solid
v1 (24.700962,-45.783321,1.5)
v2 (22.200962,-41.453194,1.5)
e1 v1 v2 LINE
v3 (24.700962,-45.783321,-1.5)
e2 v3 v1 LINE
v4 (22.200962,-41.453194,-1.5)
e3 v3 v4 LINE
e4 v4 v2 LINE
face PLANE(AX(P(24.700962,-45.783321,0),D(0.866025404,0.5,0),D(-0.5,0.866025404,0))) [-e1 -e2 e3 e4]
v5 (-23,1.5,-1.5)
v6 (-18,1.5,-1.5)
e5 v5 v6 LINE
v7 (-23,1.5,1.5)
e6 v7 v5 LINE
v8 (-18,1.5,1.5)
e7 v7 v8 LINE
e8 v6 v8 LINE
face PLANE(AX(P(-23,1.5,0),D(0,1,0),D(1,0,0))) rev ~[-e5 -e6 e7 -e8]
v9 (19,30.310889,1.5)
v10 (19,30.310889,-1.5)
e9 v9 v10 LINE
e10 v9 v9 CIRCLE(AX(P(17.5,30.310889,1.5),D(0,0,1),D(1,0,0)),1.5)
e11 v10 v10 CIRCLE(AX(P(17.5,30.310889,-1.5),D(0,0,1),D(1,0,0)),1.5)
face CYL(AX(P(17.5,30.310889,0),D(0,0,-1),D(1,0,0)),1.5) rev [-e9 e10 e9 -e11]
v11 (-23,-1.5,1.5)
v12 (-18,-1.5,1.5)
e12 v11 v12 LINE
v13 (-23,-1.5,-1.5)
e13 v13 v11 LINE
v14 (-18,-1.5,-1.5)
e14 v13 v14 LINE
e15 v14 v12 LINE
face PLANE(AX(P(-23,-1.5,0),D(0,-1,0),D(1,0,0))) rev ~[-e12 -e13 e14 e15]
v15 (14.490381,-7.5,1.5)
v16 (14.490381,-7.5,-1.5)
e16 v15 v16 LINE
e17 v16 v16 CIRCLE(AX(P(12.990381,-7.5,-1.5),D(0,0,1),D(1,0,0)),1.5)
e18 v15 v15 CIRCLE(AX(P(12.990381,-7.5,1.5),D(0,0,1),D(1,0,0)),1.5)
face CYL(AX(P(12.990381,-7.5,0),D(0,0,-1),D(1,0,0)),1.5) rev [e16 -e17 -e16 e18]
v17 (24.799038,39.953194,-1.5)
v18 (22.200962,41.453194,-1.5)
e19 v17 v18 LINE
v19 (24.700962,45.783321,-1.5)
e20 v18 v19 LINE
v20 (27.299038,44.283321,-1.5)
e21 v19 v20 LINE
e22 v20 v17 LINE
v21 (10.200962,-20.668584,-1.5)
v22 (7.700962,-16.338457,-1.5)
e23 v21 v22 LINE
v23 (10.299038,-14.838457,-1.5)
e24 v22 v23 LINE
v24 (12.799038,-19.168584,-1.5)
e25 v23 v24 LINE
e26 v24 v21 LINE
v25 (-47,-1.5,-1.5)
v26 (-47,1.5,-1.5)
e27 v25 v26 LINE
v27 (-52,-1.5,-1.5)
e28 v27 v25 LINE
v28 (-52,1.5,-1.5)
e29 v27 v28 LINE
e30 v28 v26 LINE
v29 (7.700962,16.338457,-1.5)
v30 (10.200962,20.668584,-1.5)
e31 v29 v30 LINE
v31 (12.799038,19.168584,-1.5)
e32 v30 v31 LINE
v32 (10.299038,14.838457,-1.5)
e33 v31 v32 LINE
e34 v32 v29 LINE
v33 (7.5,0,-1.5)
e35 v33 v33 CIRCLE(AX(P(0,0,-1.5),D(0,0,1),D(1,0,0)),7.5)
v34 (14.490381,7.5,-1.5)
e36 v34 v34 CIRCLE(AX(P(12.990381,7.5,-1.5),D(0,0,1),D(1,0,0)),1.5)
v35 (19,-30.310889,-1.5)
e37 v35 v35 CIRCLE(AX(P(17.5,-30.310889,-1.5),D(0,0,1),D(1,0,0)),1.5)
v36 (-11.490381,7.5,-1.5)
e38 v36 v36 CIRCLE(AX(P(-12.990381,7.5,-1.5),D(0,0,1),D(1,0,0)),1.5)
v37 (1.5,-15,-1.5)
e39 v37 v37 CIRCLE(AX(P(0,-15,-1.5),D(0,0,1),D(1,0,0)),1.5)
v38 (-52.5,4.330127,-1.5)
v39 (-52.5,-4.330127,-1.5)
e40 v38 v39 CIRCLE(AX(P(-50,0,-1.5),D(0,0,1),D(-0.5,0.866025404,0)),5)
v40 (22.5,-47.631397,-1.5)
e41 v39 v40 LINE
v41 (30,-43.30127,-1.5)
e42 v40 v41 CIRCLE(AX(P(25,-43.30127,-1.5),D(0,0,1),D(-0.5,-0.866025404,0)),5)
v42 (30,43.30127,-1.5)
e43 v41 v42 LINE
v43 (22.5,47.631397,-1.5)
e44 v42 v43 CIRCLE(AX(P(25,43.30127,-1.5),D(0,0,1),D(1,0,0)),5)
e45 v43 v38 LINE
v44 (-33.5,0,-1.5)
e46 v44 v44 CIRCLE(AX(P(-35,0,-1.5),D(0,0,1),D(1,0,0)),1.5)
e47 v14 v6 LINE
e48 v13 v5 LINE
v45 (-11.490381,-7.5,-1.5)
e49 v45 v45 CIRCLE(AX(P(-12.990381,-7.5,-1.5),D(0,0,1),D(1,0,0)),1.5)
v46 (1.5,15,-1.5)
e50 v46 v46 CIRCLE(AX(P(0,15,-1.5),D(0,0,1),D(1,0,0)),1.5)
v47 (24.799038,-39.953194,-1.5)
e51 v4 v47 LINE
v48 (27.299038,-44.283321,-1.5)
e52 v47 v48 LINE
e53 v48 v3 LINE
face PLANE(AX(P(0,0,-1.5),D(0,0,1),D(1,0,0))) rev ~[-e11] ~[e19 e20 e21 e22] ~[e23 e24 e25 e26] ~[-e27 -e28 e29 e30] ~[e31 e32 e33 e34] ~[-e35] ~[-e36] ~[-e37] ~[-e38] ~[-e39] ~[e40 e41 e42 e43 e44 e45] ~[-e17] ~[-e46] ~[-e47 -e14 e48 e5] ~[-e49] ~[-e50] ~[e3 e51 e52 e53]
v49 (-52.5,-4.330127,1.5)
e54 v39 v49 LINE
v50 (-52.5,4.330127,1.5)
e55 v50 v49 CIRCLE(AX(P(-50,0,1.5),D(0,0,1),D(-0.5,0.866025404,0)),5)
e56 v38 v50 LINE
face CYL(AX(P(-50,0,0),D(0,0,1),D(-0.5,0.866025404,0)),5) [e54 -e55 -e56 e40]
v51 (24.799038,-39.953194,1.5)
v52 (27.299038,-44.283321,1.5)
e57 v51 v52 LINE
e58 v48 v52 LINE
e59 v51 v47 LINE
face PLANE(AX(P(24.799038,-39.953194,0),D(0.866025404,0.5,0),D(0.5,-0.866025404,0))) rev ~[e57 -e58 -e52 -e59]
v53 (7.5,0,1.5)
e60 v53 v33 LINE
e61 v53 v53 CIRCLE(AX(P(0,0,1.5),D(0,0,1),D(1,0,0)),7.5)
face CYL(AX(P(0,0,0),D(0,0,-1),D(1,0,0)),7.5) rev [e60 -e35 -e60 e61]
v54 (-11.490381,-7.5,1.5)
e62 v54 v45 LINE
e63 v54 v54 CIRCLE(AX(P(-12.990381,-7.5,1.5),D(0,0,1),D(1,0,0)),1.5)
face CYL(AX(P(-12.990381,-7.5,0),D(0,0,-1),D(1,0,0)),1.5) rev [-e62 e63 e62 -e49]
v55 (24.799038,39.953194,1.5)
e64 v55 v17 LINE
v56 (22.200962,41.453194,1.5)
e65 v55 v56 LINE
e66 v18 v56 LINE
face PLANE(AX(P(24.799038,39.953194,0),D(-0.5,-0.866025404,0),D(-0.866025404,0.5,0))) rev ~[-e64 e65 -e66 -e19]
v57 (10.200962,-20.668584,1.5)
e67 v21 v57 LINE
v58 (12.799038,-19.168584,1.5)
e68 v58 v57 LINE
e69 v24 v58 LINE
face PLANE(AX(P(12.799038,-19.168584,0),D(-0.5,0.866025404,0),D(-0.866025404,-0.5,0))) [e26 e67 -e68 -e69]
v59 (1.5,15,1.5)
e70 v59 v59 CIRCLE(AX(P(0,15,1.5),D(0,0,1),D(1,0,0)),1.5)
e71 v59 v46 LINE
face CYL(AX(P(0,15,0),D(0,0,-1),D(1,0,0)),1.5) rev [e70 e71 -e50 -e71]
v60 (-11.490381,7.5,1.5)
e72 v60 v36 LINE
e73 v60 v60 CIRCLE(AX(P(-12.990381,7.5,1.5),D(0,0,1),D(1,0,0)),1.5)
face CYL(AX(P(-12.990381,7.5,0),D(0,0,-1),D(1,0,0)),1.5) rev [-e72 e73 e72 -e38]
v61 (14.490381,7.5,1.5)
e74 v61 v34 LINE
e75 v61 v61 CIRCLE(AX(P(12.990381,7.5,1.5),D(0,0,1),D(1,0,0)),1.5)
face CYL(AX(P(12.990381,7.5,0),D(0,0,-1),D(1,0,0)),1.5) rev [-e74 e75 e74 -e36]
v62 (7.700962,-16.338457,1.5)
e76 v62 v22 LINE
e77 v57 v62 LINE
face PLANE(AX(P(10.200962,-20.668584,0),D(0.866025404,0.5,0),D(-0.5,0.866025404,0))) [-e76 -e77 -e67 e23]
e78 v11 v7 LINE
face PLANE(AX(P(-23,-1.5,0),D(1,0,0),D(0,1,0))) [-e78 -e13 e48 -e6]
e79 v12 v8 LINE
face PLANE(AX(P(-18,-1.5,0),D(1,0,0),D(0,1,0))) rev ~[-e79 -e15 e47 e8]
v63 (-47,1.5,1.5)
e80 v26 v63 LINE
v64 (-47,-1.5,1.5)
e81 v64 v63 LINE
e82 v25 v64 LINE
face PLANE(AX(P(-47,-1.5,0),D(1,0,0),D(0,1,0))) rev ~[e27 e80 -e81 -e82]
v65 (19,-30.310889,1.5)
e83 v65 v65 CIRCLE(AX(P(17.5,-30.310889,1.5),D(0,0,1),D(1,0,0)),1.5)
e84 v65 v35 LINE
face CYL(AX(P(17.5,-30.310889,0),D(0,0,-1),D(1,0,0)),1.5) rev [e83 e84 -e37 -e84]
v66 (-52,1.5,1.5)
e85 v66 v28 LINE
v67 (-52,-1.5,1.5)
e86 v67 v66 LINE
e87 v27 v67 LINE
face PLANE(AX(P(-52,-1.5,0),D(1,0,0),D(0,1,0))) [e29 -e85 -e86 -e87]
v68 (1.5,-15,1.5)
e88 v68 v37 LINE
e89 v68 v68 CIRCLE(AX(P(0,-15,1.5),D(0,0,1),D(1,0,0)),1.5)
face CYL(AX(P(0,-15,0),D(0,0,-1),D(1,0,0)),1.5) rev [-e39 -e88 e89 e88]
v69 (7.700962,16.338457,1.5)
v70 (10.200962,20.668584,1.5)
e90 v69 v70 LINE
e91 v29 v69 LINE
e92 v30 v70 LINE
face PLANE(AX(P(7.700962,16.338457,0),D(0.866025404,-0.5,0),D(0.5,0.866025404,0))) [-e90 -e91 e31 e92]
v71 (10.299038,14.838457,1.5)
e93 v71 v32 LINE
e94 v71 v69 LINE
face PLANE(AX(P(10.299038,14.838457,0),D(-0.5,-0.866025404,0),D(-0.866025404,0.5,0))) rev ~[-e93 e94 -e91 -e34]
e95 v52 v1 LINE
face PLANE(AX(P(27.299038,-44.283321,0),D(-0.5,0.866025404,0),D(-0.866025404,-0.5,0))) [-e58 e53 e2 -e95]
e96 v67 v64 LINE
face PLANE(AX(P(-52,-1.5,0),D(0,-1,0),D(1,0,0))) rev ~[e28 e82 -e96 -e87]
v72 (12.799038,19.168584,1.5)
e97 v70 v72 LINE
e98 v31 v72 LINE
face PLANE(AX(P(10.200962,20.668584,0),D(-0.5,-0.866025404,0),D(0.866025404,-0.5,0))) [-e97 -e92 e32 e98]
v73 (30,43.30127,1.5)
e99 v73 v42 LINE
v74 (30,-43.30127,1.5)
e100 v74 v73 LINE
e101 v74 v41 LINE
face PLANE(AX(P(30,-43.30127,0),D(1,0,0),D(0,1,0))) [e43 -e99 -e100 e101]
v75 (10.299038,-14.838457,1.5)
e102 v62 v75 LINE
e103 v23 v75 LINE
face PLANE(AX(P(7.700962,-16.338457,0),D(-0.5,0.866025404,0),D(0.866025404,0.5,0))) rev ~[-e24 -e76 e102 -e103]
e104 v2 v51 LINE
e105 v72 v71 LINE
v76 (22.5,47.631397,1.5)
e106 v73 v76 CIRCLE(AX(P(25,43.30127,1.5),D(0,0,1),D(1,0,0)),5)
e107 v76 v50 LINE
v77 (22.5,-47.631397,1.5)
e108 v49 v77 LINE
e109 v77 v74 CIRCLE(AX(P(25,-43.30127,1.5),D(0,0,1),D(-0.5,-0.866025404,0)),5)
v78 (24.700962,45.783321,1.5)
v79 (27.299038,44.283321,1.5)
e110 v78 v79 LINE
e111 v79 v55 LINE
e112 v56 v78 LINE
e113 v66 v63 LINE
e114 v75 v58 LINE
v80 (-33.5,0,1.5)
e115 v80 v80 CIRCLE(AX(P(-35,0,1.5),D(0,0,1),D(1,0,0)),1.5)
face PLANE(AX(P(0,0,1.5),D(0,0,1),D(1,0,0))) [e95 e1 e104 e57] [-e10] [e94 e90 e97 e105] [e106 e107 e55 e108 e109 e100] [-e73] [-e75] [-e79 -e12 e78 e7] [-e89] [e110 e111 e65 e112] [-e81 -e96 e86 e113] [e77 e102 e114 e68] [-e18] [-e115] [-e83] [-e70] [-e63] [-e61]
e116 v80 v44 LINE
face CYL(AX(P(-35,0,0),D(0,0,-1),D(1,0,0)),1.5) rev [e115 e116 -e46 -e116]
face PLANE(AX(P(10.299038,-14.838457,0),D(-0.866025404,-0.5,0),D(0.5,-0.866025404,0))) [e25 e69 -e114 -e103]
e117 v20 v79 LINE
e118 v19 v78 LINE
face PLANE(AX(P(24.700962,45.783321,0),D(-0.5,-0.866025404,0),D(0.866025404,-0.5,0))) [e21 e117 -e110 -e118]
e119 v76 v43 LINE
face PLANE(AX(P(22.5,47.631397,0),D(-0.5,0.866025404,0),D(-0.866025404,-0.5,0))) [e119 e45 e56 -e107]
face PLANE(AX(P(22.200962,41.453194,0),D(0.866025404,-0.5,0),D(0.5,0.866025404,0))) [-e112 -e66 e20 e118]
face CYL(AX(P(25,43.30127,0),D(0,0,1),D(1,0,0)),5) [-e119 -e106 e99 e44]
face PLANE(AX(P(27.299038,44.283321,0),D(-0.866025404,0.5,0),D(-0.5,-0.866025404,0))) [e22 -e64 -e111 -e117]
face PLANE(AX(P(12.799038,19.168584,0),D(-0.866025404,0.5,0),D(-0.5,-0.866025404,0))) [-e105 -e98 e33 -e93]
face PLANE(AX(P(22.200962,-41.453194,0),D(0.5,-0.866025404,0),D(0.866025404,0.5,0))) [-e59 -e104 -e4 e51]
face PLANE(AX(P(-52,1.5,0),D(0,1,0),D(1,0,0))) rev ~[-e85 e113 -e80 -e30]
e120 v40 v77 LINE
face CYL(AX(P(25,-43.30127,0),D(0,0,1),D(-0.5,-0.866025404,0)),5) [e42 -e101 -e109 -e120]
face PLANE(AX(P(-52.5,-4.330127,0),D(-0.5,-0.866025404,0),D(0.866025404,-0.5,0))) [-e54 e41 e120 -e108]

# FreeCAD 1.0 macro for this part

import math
import FreeCAD as App
import Part
import Sketcher

V = App.Vector
Q = App.Units.Quantity


def add_polygon(sketch, points):
    """Adds a closed chain of lines whose ends are joined by coincident constraints."""
    first, n = sketch.GeometryCount, len(points)
    for a, b in zip(points, points[1:] + points[:1]):
        sketch.addGeometry(Part.LineSegment(App.Vector(*a, 0), App.Vector(*b, 0)), False)
    for i in range(n):
        sketch.addConstraint(Sketcher.Constraint("Coincident", first + i, 2, first + (i + 1) % n, 1))

doc = App.newDocument("Part")
body = doc.addObject("PartDesign::Body", "Body")

# Sketch on XY plane
sketch1 = body.newObject("Sketcher::SketchObject", "Sketch")
sketch1.AttachmentSupport = (doc.getObject("XY_Plane"), [""])
sketch1.MapMode = "FlatFace"
sketch1.addGeometry(Part.LineSegment(V(22.5, 47.6, 0), V(-52.5, 4.3, 0)), False)  # 0
sketch1.addGeometry(Part.ArcOfCircle(Part.Circle(V(-50, 0, 0), V(0, 0, 1), 5), math.radians(120), math.radians(240)), False)  # 1
sketch1.addGeometry(Part.LineSegment(V(-52.5, -4.3, 0), V(22.5, -47.6, 0)), False)  # 2
sketch1.addGeometry(Part.ArcOfCircle(Part.Circle(V(25, -43.3, 0), V(0, 0, 1), 5), math.radians(-120), math.radians(0)), False)  # 3
sketch1.addGeometry(Part.LineSegment(V(30, -43.3, 0), V(30, 43.3, 0)), False)  # 4
sketch1.addGeometry(Part.ArcOfCircle(Part.Circle(V(25, 43.3, 0), V(0, 0, 1), 5), math.radians(0), math.radians(120)), False)  # 5
sketch1.addGeometry(Part.Circle(V(-13, -7.5, 0), V(0, 0, 1), 1.5), False)  # 6
add_polygon(sketch1, [(24.7, -45.8), (22.2, -41.5), (24.8, -40), (27.3, -44.3)])  # lines 7-10
sketch1.addGeometry(Part.Circle(V(17.5, -30.3, 0), V(0, 0, 1), 1.5), False)  # 11
sketch1.addGeometry(Part.Circle(V(0, -15, 0), V(0, 0, 1), 1.5), False)  # 12
add_polygon(sketch1, [(12.8, -19.2), (10.2, -20.7), (7.7, -16.3), (10.3, -14.8)])  # lines 13-16
sketch1.addGeometry(Part.Circle(V(13, -7.5, 0), V(0, 0, 1), 1.5), False)  # 17
add_polygon(sketch1, [(-47, -1.5), (-52, -1.5), (-52, 1.5), (-47, 1.5)])  # lines 18-21
sketch1.addGeometry(Part.Circle(V(-35, 0, 0), V(0, 0, 1), 1.5), False)  # 22
add_polygon(sketch1, [(-18, -1.5), (-23, -1.5), (-23, 1.5), (-18, 1.5)])  # lines 23-26
sketch1.addGeometry(Part.Circle(V(-13, 7.5, 0), V(0, 0, 1), 1.5), False)  # 27
sketch1.addGeometry(Part.Circle(V(0, 0, 0), V(0, 0, 1), 7.5), False)  # 28
sketch1.addGeometry(Part.Circle(V(0, 15, 0), V(0, 0, 1), 1.5), False)  # 29
sketch1.addGeometry(Part.Circle(V(13, 7.5, 0), V(0, 0, 1), 1.5), False)  # 30
add_polygon(sketch1, [(10.2, 20.7), (12.8, 19.2), (10.3, 14.8), (7.7, 16.3)])  # lines 31-34
sketch1.addGeometry(Part.Circle(V(17.5, 30.3, 0), V(0, 0, 1), 1.5), False)  # 35
add_polygon(sketch1, [(27.3, 44.3), (24.8, 40), (22.2, 41.5), (24.7, 45.8)])  # lines 36-39
sketch1.addConstraint([
    Sketcher.Constraint("Tangent", 0, 2, 1, 1),
    Sketcher.Constraint("Tangent", 1, 2, 2, 1),
    Sketcher.Constraint("Tangent", 2, 2, 3, 1),
    Sketcher.Constraint("Tangent", 3, 2, 4, 1),
    Sketcher.Constraint("Tangent", 4, 2, 5, 1),
    Sketcher.Constraint("Tangent", 5, 2, 0, 1),
    Sketcher.Constraint("Vertical", 4),
    Sketcher.Constraint("Horizontal", 18),
    Sketcher.Constraint("Vertical", 19),
    Sketcher.Constraint("Horizontal", 20),
    Sketcher.Constraint("Vertical", 21),
    Sketcher.Constraint("Horizontal", 23),
    Sketcher.Constraint("Vertical", 24),
    Sketcher.Constraint("Horizontal", 25),
    Sketcher.Constraint("Vertical", 26),
    Sketcher.Constraint("Coincident", 28, 3, -1, 1),
    Sketcher.Constraint("Equal", 1, 3),
    Sketcher.Constraint("Equal", 3, 5),
    Sketcher.Constraint("Equal", 6, 11),
    Sketcher.Constraint("Equal", 11, 12),
    Sketcher.Constraint("Equal", 12, 17),
    Sketcher.Constraint("Equal", 17, 22),
    Sketcher.Constraint("Equal", 22, 27),
    Sketcher.Constraint("Equal", 27, 29),
    Sketcher.Constraint("Equal", 29, 30),
    Sketcher.Constraint("Equal", 30, 35),
    Sketcher.Constraint("Symmetric", 17, 3, 27, 3, -1, 1),
    Sketcher.Constraint("Symmetric", 12, 3, 29, 3, -1, 1),
    Sketcher.Constraint("Symmetric", 6, 3, 30, 3, -1, 1),
    Sketcher.Constraint("Symmetric", 6, 3, 17, 3, -2),
    Sketcher.Constraint("Symmetric", 11, 3, 35, 3, -1),
    Sketcher.Constraint("Symmetric", 0, 2, 1, 2, -1),
    Sketcher.Constraint("Symmetric", 16, 2, 31, 2, -1),
    Sketcher.Constraint("Symmetric", 15, 2, 32, 2, -1),
    Sketcher.Constraint("Symmetric", 14, 2, 33, 2, -1),
    Sketcher.Constraint("Symmetric", 13, 2, 34, 2, -1),
    Sketcher.Constraint("Symmetric", 8, 2, 36, 2, -1),
    Sketcher.Constraint("Symmetric", 7, 2, 37, 2, -1),
    Sketcher.Constraint("Symmetric", 10, 2, 38, 2, -1),
    Sketcher.Constraint("Symmetric", 9, 2, 39, 2, -1),
    Sketcher.Constraint("PointOnObject", 12, 3, -2),
    Sketcher.Constraint("PointOnObject", 22, 3, -1),
    Sketcher.Constraint("Perpendicular", 0, 7),
    Sketcher.Constraint("Perpendicular", 7, 8),
    Sketcher.Constraint("Perpendicular", 8, 9),
    Sketcher.Constraint("Perpendicular", 9, 10),
    Sketcher.Constraint("Parallel", 10, 13),
    Sketcher.Constraint("Perpendicular", 13, 14),
    Sketcher.Constraint("Perpendicular", 14, 15),
    Sketcher.Constraint("Perpendicular", 15, 16),
    Sketcher.Constraint("Horizontal", 21, 2, 23, 2),
    Sketcher.Constraint("Horizontal", 20, 2, 24, 2),
    Sketcher.Constraint("Equal", 20, 23),
    Sketcher.Constraint("Equal", 10, 13),
    Sketcher.Constraint("Equal", 9, 14),
    Sketcher.Constraint("Diameter", 6, Q("3 mm")),
    Sketcher.Constraint("Diameter", 28, Q("15 mm")),
    Sketcher.Constraint("Radius", 1, Q("5 mm")),
    Sketcher.Constraint("DistanceX", 18, 2, 18, 1, Q("5 mm")),
    Sketcher.Constraint("DistanceY", 19, 1, 19, 2, Q("3 mm")),
    Sketcher.Constraint("Angle", 0, Q("-150 deg")),
    Sketcher.Constraint("Distance", 7, Q("5 mm")),
    Sketcher.Constraint("Distance", 8, Q("3 mm")),
    Sketcher.Constraint("DistanceX", 1, 3, -1, 1, Q("50 mm")),
    Sketcher.Constraint("DistanceX", -1, 1, 3, 3, Q("25 mm")),
    Sketcher.Constraint("DistanceY", 12, 3, -1, 1, Q("15 mm")),
    Sketcher.Constraint("DistanceX", 22, 3, -1, 1, Q("35 mm")),
    Sketcher.Constraint("DistanceX", 18, 2, -1, 1, Q("52 mm")),
    Sketcher.Constraint("DistanceX", 23, 2, -1, 1, Q("23 mm")),
    Sketcher.Constraint("DistanceY", 6, 3, 27, 3, Q("15 mm")),
    Sketcher.Constraint("DistanceX", 11, 3, 2, 2, Q("5 mm")),
    Sketcher.Constraint("DistanceX", 13, 2, 7, 2, Q("12 mm")),
    Sketcher.Constraint("DistanceY", 6, 3, 18, 2, Q("6 mm")),
    Sketcher.Constraint("DistanceX", 6, 3, -1, 1, Q("12.990381 mm")),
    Sketcher.Constraint("DistanceY", 11, 3, -1, 1, Q("30.310889 mm")),
    Sketcher.Constraint("DistanceX", -1, 1, 7, 2, Q("22.200962 mm")),
    Sketcher.Constraint("DistanceY", 9, 2, -1, 1, Q("44.283321 mm")),
    Sketcher.Constraint("DistanceY", 7, 2, 13, 2, Q("20.78461 mm")),
])
pad1 = body.newObject("PartDesign::Pad", "Pad")
pad1.Profile = sketch1
pad1.Length = 3
pad1.Midplane = True

doc.recompute()
